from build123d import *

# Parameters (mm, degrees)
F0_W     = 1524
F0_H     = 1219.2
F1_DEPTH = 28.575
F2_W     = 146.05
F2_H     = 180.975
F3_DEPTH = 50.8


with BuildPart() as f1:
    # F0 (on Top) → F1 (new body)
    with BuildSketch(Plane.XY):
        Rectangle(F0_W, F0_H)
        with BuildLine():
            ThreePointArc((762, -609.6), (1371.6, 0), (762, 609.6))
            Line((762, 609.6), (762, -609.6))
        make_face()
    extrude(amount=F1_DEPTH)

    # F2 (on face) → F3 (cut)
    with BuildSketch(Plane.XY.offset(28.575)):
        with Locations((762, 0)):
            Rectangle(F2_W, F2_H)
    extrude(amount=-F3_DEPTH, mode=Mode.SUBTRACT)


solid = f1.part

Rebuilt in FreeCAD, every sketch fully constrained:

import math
import FreeCAD as App
import Part
import Sketcher
Q = App.Units.Quantity

doc = App.newDocument("Part")
body = doc.addObject("PartDesign::Body", "Body")

# Sketch on XY plane
sketch1 = body.newObject("Sketcher::SketchObject", "Sketch")
sketch1.AttachmentSupport = (doc.getObject("XY_Plane"), [""])
sketch1.MapMode = "FlatFace"
sketch1.addGeometry([
    Part.LineSegment(App.Vector(-762, 609.6, 0), App.Vector(-762, -609.6, 0)),
    Part.LineSegment(App.Vector(-762, -609.6, 0), App.Vector(762, -609.6, 0)),
    Part.ArcOfCircle(Part.Circle(App.Vector(762, 0, 0), App.Vector(0, 0, 1), 609.6), math.radians(-90), math.radians(90)),
    Part.LineSegment(App.Vector(762, 609.6, 0), App.Vector(-762, 609.6, 0)),
], False)
sketch1.addConstraint([
    Sketcher.Constraint("Coincident", 0, 2, 1, 1),
    Sketcher.Constraint("Tangent", 1, 2, 2, 1),
    Sketcher.Constraint("Tangent", 2, 2, 3, 1),
    Sketcher.Constraint("Coincident", 3, 2, 0, 1),
    Sketcher.Constraint("Vertical", 0),
    Sketcher.Constraint("Horizontal", 1),
    Sketcher.Constraint("Horizontal", 3),
    Sketcher.Constraint("Symmetric", 1, 2, 3, 2, -1, 1),
    Sketcher.Constraint("Radius", 2, Q("24 in")),
    Sketcher.Constraint("DistanceX", 1, 1, 1, 2, Q("60 in")),
])
pad1 = body.newObject("PartDesign::Pad", "Pad")
pad1.Profile = sketch1
pad1.Length = Q("1.125 in")

# Sketch on XY plane
sketch2 = body.newObject("Sketcher::SketchObject", "Sketch001")
sketch2.AttachmentSupport = (doc.getObject("XY_Plane"), [""])
sketch2.MapMode = "FlatFace"
sketch2.AttachmentOffset = App.Placement(App.Vector(0, 0, 1.125 * 25.4), App.Rotation())
sketch2.addGeometry([
    Part.LineSegment(App.Vector(688.975, 90.4875, 0), App.Vector(688.975, -90.4875, 0)),
    Part.LineSegment(App.Vector(688.975, -90.4875, 0), App.Vector(835.025, -90.4875, 0)),
    Part.LineSegment(App.Vector(835.025, -90.4875, 0), App.Vector(835.025, 90.4875, 0)),
    Part.LineSegment(App.Vector(835.025, 90.4875, 0), App.Vector(688.975, 90.4875, 0)),
], False)
sketch2.addConstraint([
    Sketcher.Constraint("Coincident", 0, 2, 1, 1),
    Sketcher.Constraint("Coincident", 1, 2, 2, 1),
    Sketcher.Constraint("Coincident", 2, 2, 3, 1),
    Sketcher.Constraint("Coincident", 3, 2, 0, 1),
    Sketcher.Constraint("Vertical", 0),
    Sketcher.Constraint("Horizontal", 1),
    Sketcher.Constraint("Vertical", 2),
    Sketcher.Constraint("Horizontal", 3),
    Sketcher.Constraint("DistanceX", 1, 1, 1, 2, Q("5.75 in")),
    Sketcher.Constraint("DistanceY", 0, 2, 0, 1, Q("7.125 in")),
    Sketcher.Constraint("DistanceX", -1, 1, 0, 2, Q("27.125 in")),
    Sketcher.Constraint("DistanceY", 0, 2, -1, 1, Q("3.5625 in")),
])
pocket1 = body.newObject("PartDesign::Pocket", "Pocket")
pocket1.Profile = sketch2
pocket1.Length = Q("2 in")

doc.recompute()
